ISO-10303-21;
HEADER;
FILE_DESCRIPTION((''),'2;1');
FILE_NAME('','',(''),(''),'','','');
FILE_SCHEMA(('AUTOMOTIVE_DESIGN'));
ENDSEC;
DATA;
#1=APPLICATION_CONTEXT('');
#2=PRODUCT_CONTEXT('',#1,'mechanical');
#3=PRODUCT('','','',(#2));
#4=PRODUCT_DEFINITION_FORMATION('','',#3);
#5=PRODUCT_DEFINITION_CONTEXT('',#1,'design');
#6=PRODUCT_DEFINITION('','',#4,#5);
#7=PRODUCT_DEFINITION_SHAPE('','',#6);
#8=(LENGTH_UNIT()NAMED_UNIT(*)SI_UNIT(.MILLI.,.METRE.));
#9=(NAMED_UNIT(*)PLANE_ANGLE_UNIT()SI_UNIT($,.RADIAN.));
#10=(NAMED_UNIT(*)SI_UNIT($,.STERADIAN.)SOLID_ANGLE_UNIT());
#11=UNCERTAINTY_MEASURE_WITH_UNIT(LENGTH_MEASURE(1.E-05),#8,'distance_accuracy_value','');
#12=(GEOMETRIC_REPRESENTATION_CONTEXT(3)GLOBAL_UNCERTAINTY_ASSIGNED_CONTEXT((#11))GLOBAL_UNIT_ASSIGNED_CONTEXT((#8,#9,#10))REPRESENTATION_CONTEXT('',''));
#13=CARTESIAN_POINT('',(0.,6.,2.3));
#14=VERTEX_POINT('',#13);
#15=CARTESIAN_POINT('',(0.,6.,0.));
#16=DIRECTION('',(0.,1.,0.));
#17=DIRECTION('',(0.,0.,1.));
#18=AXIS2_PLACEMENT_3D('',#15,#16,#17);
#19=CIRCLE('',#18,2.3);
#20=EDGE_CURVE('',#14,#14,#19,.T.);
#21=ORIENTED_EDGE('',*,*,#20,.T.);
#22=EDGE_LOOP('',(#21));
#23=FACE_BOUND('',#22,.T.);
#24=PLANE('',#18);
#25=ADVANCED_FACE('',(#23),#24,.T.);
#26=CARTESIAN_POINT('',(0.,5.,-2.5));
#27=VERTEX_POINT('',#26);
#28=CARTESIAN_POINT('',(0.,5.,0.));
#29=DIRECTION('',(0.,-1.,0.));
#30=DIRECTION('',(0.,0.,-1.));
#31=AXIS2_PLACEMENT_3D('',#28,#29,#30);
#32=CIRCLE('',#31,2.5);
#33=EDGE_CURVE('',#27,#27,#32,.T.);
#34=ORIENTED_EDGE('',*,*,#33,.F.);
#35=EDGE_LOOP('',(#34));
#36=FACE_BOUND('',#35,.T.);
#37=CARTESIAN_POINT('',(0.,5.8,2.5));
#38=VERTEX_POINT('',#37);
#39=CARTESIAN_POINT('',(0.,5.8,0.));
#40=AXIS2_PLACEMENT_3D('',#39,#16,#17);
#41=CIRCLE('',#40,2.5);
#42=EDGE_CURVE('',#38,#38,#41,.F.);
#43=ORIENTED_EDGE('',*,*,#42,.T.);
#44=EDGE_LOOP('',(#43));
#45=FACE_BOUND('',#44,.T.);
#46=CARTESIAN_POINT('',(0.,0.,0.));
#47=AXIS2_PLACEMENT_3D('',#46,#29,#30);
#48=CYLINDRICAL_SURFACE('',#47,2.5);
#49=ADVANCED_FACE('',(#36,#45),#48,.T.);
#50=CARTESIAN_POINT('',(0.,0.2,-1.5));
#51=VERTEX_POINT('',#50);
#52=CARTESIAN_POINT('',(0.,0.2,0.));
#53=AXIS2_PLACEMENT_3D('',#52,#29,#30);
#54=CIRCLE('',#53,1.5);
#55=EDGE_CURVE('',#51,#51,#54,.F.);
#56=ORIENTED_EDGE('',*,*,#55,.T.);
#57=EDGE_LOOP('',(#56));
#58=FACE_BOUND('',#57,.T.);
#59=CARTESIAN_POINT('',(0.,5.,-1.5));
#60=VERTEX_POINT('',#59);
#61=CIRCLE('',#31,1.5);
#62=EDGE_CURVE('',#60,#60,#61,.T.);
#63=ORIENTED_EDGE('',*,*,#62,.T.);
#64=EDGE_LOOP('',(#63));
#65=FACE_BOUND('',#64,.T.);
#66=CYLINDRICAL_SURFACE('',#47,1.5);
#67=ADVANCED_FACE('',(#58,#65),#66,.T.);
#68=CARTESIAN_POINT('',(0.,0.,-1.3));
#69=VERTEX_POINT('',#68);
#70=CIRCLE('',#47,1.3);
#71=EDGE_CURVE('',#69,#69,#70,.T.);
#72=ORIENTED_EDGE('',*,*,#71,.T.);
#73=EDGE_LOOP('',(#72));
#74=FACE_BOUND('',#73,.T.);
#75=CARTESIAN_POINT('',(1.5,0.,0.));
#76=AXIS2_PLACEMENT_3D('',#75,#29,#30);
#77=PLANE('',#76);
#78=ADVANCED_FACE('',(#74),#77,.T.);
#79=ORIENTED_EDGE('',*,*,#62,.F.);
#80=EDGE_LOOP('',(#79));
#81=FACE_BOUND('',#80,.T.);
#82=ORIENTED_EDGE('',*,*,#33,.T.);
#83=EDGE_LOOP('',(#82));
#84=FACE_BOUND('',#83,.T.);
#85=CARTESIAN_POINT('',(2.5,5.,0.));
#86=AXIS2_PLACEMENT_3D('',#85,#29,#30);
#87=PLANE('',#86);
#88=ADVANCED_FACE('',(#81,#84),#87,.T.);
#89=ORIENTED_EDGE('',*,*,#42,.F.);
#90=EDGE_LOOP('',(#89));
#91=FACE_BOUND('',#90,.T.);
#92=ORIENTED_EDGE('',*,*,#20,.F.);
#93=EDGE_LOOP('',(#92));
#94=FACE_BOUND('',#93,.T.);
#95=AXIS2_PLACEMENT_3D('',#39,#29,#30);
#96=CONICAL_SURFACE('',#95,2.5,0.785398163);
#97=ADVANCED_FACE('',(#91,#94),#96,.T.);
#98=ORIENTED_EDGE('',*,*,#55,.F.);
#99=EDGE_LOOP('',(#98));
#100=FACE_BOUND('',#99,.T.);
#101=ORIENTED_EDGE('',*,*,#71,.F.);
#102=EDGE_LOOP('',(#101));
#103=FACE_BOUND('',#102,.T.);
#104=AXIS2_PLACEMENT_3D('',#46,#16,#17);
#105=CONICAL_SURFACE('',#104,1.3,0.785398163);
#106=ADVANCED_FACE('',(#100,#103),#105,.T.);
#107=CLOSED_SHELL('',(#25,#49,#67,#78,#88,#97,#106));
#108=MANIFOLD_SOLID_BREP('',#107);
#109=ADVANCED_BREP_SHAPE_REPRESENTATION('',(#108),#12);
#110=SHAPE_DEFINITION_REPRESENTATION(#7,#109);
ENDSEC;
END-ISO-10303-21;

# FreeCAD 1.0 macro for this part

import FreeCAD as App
import Part
import Sketcher

V = App.Vector
Q = App.Units.Quantity


def edges_at(feature, points):
    """Names of the edges that pass closest to the given points."""
    edges = feature.Shape.Edges
    near = lambda p: min(range(len(edges)), key=lambda i: edges[i].distToShape(Part.Vertex(*p))[0])
    return sorted({f"Edge{near(p) + 1}" for p in points})


def add_polygon(sketch, points):
    """Adds a closed chain of lines whose ends are joined by coincident constraints."""
    first, n = sketch.GeometryCount, len(points)
    for a, b in zip(points, points[1:] + points[:1]):
        sketch.addGeometry(Part.LineSegment(App.Vector(*a, 0), App.Vector(*b, 0)), False)
    for i in range(n):
        sketch.addConstraint(Sketcher.Constraint("Coincident", first + i, 2, first + (i + 1) % n, 1))

doc = App.newDocument("Part")
body = doc.addObject("PartDesign::Body", "Body")

# Sketch on XY plane
sketch1 = doc.addObject("Sketcher::SketchObject", "Sketch")
body.addObject(sketch1)
sketch1.AttachmentSupport = (doc.XY_Plane, [""])
sketch1.MapMode = "FlatFace"
add_polygon(sketch1, [(0, 6), (0, 0), (1.5, 0), (1.5, 5), (2.5, 5), (2.5, 6)])  # lines 0-5
sketch1.addConstraint(Sketcher.Constraint("Vertical", 0))
sketch1.addConstraint(Sketcher.Constraint("Horizontal", 1))
sketch1.addConstraint(Sketcher.Constraint("Vertical", 2))
sketch1.addConstraint(Sketcher.Constraint("Horizontal", 3))
sketch1.addConstraint(Sketcher.Constraint("Vertical", 4))
sketch1.addConstraint(Sketcher.Constraint("Horizontal", 5))
sketch1.addConstraint(Sketcher.Constraint("Coincident", 0, 2, -1, 1))
sketch1.addConstraint(Sketcher.Constraint("Equal", 3, 4))
sketch1.addConstraint(Sketcher.Constraint("DistanceX", 3, 1, 3, 2, Q("1 mm")))
sketch1.addConstraint(Sketcher.Constraint("DistanceY", 0, 2, 0, 1, Q("6 mm")))
sketch1.addConstraint(Sketcher.Constraint("DistanceX", 1, 1, 1, 2, Q("1.5 mm")))
revolution = doc.addObject("PartDesign::Revolution", "Revolution")
body.addObject(revolution)
revolution.Profile = sketch1
revolution.ReferenceAxis = (sketch1, ["V_Axis"])
revolution.Angle = 360
doc.recompute()

chamfer = doc.addObject("PartDesign::Chamfer", "Chamfer")
body.addObject(chamfer)
chamfer.Base = (revolution, edges_at(revolution, [(0, 0, 1.5), (0, 6, 2.5)]))
chamfer.Size = 0.2

doc.recompute()
